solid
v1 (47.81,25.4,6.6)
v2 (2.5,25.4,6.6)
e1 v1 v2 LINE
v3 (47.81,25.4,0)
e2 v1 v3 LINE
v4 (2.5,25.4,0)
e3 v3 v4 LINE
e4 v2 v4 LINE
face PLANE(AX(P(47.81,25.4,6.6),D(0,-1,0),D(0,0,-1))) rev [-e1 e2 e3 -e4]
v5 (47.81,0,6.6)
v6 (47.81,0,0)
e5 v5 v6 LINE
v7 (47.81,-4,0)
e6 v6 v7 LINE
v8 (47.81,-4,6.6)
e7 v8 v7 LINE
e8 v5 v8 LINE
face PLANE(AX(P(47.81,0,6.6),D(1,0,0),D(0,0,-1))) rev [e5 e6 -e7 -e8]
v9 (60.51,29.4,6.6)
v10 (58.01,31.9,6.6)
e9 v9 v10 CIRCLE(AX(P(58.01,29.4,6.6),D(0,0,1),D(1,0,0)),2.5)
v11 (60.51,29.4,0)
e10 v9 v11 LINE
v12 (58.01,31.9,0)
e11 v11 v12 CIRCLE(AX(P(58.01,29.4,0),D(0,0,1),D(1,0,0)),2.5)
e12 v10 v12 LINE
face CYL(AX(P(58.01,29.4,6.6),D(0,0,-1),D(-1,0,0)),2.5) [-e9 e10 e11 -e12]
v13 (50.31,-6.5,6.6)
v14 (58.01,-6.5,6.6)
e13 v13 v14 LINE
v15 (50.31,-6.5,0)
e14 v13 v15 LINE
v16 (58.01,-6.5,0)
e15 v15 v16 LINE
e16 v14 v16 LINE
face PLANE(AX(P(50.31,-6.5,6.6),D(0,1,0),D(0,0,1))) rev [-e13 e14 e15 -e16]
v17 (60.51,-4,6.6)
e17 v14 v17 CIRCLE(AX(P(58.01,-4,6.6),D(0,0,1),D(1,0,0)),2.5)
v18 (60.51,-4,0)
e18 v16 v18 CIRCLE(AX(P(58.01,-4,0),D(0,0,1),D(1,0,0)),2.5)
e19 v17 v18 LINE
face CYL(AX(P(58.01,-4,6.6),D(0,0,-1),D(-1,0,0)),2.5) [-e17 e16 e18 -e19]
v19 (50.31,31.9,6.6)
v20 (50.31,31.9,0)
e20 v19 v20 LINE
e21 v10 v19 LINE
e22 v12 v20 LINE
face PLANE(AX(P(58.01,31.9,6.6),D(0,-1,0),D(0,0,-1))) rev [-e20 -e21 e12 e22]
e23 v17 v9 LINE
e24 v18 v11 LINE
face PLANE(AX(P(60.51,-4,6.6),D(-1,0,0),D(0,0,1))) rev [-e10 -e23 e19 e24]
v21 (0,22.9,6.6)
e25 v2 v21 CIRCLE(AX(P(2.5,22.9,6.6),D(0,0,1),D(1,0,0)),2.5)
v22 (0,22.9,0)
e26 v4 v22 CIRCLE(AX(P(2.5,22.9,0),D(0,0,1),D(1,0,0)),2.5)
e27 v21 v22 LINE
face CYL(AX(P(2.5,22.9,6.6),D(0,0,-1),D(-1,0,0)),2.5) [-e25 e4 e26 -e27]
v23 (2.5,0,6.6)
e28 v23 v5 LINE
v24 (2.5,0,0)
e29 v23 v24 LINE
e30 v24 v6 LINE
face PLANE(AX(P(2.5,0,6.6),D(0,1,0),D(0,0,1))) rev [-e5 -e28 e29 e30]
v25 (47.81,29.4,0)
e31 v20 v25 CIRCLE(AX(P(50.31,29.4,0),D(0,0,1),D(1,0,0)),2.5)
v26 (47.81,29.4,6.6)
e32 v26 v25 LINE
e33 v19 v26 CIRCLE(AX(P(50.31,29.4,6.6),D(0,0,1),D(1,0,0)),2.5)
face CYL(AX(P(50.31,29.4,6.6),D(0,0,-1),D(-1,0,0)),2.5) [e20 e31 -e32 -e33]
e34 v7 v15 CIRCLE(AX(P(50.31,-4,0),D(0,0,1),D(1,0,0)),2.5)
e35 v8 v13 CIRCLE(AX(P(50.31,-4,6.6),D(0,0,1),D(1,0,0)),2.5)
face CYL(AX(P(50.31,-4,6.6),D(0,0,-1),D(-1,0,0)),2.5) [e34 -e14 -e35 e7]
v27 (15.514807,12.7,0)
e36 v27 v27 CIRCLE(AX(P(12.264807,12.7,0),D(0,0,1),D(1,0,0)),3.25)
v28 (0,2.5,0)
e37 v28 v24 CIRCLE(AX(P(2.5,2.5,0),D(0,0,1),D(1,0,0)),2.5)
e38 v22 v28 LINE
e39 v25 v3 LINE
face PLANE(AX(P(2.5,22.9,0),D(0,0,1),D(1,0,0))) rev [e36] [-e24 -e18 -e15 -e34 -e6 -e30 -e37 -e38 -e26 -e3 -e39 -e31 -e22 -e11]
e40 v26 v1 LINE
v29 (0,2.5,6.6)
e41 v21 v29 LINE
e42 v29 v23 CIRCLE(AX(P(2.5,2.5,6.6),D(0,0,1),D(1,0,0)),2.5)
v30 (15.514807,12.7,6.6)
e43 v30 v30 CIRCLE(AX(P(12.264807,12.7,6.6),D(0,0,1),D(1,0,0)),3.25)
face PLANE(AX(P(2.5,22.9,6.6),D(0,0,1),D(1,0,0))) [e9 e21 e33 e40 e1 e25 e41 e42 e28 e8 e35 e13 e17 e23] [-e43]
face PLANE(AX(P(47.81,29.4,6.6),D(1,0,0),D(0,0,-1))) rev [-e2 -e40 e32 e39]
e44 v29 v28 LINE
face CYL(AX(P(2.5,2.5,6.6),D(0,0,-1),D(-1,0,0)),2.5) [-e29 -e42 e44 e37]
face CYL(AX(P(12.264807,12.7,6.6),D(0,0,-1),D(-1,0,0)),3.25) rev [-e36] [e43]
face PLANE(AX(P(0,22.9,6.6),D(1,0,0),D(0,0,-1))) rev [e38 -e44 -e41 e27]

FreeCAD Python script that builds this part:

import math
import FreeCAD as App
import Part
import Sketcher

V = App.Vector

doc = App.newDocument("Part")
params = doc.addObject("Spreadsheet::Sheet", "Params")
for row, (alias, value) in enumerate([
    ("sketch1_diameter", "6.5 mm"),
    ("sketch1_radius", "2.5 mm"),
    ("sketch1_height", "4 mm"),
    ("sketch1_width", "7.7 mm"),
    ("sketch1_height2", "20.4 mm"),
    ("pad1_length", "6.6 mm"),
], start=1):
    params.set(f"A{row}", alias)
    params.set(f"B{row}", "=" + value)
    params.setAlias(f"B{row}", alias)

body = doc.addObject("PartDesign::Body", "Body")

# Sketch on XY plane
sketch1 = body.newObject("Sketcher::SketchObject", "Sketch")
sketch1.AttachmentSupport = (doc.getObject("XY_Plane"), [""])
sketch1.MapMode = "FlatFace"
sketch1.addGeometry([
    Part.LineSegment(V(58, 31.9, 0), V(50.3, 31.9, 0)),  # 0
    Part.ArcOfCircle(Part.Circle(V(50.3, 29.4, 0), V(0, 0, 1), 2.5), math.radians(90), math.radians(180)),  # 1
    Part.LineSegment(V(47.8, 29.4, 0), V(47.8, 25.4, 0)),  # 2
    Part.LineSegment(V(47.8, 25.4, 0), V(2.5, 25.4, 0)),  # 3
    Part.ArcOfCircle(Part.Circle(V(2.5, 22.9, 0), V(0, 0, 1), 2.5), math.radians(90), math.radians(180)),  # 4
    Part.LineSegment(V(0, 22.9, 0), V(0, 2.5, 0)),  # 5
    Part.ArcOfCircle(Part.Circle(V(2.5, 2.5, 0), V(0, 0, 1), 2.5), math.radians(180), math.radians(270)),  # 6
    Part.LineSegment(V(2.5, 0, 0), V(47.8, 0, 0)),  # 7
    Part.LineSegment(V(47.8, 0, 0), V(47.8, -4, 0)),  # 8
    Part.ArcOfCircle(Part.Circle(V(50.3, -4, 0), V(0, 0, 1), 2.5), math.radians(180), math.radians(270)),  # 9
    Part.LineSegment(V(50.3, -6.5, 0), V(58, -6.5, 0)),  # 10
    Part.ArcOfCircle(Part.Circle(V(58, -4, 0), V(0, 0, 1), 2.5), math.radians(-90), math.radians(0)),  # 11
    Part.LineSegment(V(60.5, -4, 0), V(60.5, 29.4, 0)),  # 12
    Part.ArcOfCircle(Part.Circle(V(58, 29.4, 0), V(0, 0, 1), 2.5), math.radians(0), math.radians(90)),  # 13
    Part.Circle(V(12.3, 12.7, 0), V(0, 0, 1), 3.2),  # 14
], False)
sketch1.addConstraint([
    Sketcher.Constraint("Tangent", 0, 2, 1, 1),
    Sketcher.Constraint("Tangent", 1, 2, 2, 1),
    Sketcher.Constraint("Coincident", 2, 2, 3, 1),
    Sketcher.Constraint("Tangent", 3, 2, 4, 1),
    Sketcher.Constraint("Tangent", 4, 2, 5, 1),
    Sketcher.Constraint("Tangent", 5, 2, 6, 1),
    Sketcher.Constraint("Tangent", 6, 2, 7, 1),
    Sketcher.Constraint("Coincident", 7, 2, 8, 1),
    Sketcher.Constraint("Tangent", 8, 2, 9, 1),
    Sketcher.Constraint("Tangent", 9, 2, 10, 1),
    Sketcher.Constraint("Tangent", 10, 2, 11, 1),
    Sketcher.Constraint("Tangent", 11, 2, 12, 1),
    Sketcher.Constraint("Tangent", 12, 2, 13, 1),
    Sketcher.Constraint("Tangent", 13, 2, 0, 1),
    Sketcher.Constraint("Horizontal", 0),
    Sketcher.Constraint("Vertical", 2),
    Sketcher.Constraint("Horizontal", 3),
    Sketcher.Constraint("Vertical", 5),
    Sketcher.Constraint("Horizontal", 7),
    Sketcher.Constraint("Vertical", 8),
    Sketcher.Constraint("Horizontal", 10),
    Sketcher.Constraint("Vertical", 12),
    Sketcher.Constraint("Equal", 1, 4),
    Sketcher.Constraint("Equal", 4, 6),
    Sketcher.Constraint("Equal", 6, 9),
    Sketcher.Constraint("Equal", 9, 11),
    Sketcher.Constraint("Equal", 11, 13),
    Sketcher.Constraint("PointOnObject", 4, 2, -2),
    Sketcher.Constraint("PointOnObject", 6, 2, -1),
    Sketcher.Constraint("Vertical", 1, 3, 9, 3),
    Sketcher.Constraint("Equal", 2, 8),
    Sketcher.Constraint("Diameter", 14, 6.5),
    Sketcher.Constraint("Radius", 1, 2.5),
    Sketcher.Constraint("DistanceY", 2, 2, 2, 1, 4.0),
    Sketcher.Constraint("DistanceX", 0, 2, 0, 1, 7.7),
    Sketcher.Constraint("DistanceY", 5, 2, 5, 1, 20.4),
    Sketcher.Constraint("DistanceX", 3, 2, 3, 1, 45.31),
    Sketcher.Constraint("DistanceY", -1, 1, 14, 3, 12.7),
    Sketcher.Constraint("DistanceX", -1, 1, 14, 3, 12.264807),
])
sketch1.setExpression("Constraints[31]", "Params.sketch1_diameter")
sketch1.setExpression("Constraints[32]", "Params.sketch1_radius")
sketch1.setExpression("Constraints[33]", "Params.sketch1_height")
sketch1.setExpression("Constraints[34]", "Params.sketch1_width")
sketch1.setExpression("Constraints[35]", "Params.sketch1_height2")
pad1 = body.newObject("PartDesign::Pad", "Pad")
pad1.Profile = sketch1
pad1.setExpression("Length", "Params.pad1_length")

doc.recompute()
